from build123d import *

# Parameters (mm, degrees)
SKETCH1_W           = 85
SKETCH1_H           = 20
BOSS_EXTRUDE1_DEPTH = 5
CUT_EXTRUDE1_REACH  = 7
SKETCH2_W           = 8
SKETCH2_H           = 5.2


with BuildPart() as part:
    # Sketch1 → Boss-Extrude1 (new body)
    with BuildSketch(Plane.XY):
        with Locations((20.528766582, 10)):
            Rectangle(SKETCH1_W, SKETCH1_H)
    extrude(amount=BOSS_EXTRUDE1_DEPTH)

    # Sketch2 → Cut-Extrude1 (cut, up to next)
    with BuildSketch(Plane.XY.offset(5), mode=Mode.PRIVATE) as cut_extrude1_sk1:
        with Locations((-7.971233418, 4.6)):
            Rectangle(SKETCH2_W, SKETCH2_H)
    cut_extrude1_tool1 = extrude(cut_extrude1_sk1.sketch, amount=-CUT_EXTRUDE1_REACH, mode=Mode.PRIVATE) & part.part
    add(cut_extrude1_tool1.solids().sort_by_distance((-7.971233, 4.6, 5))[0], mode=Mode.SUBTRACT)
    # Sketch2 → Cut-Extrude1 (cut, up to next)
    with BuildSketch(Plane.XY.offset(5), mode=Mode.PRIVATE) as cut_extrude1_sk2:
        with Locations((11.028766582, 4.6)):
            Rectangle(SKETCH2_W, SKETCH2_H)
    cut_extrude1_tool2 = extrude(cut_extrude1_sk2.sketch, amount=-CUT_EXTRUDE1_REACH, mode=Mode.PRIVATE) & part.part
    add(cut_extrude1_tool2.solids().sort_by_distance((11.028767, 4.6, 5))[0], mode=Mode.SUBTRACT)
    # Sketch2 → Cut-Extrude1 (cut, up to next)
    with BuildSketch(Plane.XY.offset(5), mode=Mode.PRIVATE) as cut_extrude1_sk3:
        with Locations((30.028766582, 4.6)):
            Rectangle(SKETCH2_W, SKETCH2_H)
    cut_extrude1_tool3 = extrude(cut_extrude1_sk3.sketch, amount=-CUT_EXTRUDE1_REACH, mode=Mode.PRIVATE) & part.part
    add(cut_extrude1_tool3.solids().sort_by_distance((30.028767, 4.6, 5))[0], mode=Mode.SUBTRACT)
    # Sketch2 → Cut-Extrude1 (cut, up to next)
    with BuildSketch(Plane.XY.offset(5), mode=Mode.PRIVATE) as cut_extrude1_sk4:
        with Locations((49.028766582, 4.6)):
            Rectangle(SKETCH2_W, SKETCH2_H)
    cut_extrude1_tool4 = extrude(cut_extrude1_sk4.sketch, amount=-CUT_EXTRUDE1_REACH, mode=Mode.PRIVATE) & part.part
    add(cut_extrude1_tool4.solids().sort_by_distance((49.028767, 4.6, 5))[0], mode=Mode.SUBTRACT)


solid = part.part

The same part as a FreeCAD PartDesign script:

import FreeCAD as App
import Part
import Sketcher
from FreeCAD import Vector

doc = App.newDocument("Part")
body = doc.addObject("PartDesign::Body", "Body")

# Sketch on XY plane
sketch1 = body.newObject("Sketcher::SketchObject", "Sketch")
sketch1.AttachmentSupport = (doc.getObject("XY_Plane"), [""])
sketch1.MapMode = "FlatFace"
sketch1.addGeometry(Part.LineSegment(Vector(-22, 20, 0), Vector(-22, 0, 0)), False)
sketch1.addGeometry(Part.LineSegment(Vector(-22, 0, 0), Vector(63, 0, 0)), False)
sketch1.addGeometry(Part.LineSegment(Vector(63, 0, 0), Vector(63, 20, 0)), False)
sketch1.addGeometry(Part.LineSegment(Vector(63, 20, 0), Vector(-22, 20, 0)), False)
sketch1.addConstraint(Sketcher.Constraint("Coincident", 0, 2, 1, 1))
sketch1.addConstraint(Sketcher.Constraint("Coincident", 1, 2, 2, 1))
sketch1.addConstraint(Sketcher.Constraint("Coincident", 2, 2, 3, 1))
sketch1.addConstraint(Sketcher.Constraint("Coincident", 3, 2, 0, 1))
sketch1.addConstraint(Sketcher.Constraint("Vertical", 0))
sketch1.addConstraint(Sketcher.Constraint("Horizontal", 1))
sketch1.addConstraint(Sketcher.Constraint("Vertical", 2))
sketch1.addConstraint(Sketcher.Constraint("Horizontal", 3))
sketch1.addConstraint(Sketcher.Constraint("PointOnObject", 0, 2, -1))
sketch1.addConstraint(Sketcher.Constraint("DistanceX", 1, 1, 1, 2, 85.0))
sketch1.addConstraint(Sketcher.Constraint("DistanceY", 0, 2, 0, 1, 20.0))
sketch1.addConstraint(Sketcher.Constraint("DistanceX", 0, 2, -1, 1, 21.971233))
pad1 = body.newObject("PartDesign::Pad", "Pad")
pad1.Profile = sketch1
pad1.Length = 5

# Sketch on XY plane
sketch2 = body.newObject("Sketcher::SketchObject", "Sketch001")
sketch2.AttachmentSupport = (doc.getObject("XY_Plane"), [""])
sketch2.MapMode = "FlatFace"
sketch2.AttachmentOffset = App.Placement(Vector(0, 0, 5), App.Rotation())
sketch2.addGeometry(Part.LineSegment(Vector(-12, 7, 0), Vector(-12, 2, 0)), False)
sketch2.addGeometry(Part.LineSegment(Vector(-12, 2, 0), Vector(-4, 2, 0)), False)
sketch2.addGeometry(Part.LineSegment(Vector(-4, 2, 0), Vector(-4, 7, 0)), False)
sketch2.addGeometry(Part.LineSegment(Vector(-4, 7, 0), Vector(-12, 7, 0)), False)
sketch2.addConstraint(Sketcher.Constraint("Coincident", 0, 2, 1, 1))
sketch2.addConstraint(Sketcher.Constraint("Coincident", 1, 2, 2, 1))
sketch2.addConstraint(Sketcher.Constraint("Coincident", 2, 2, 3, 1))
sketch2.addConstraint(Sketcher.Constraint("Coincident", 3, 2, 0, 1))
sketch2.addConstraint(Sketcher.Constraint("Vertical", 0))
sketch2.addConstraint(Sketcher.Constraint("Horizontal", 1))
sketch2.addConstraint(Sketcher.Constraint("Vertical", 2))
sketch2.addConstraint(Sketcher.Constraint("Horizontal", 3))
sketch2.addConstraint(Sketcher.Constraint("DistanceX", 1, 1, 1, 2, 8.0))
sketch2.addConstraint(Sketcher.Constraint("DistanceY", 0, 2, 0, 1, 5.2))
sketch2.addConstraint(Sketcher.Constraint("DistanceY", -1, 1, 0, 2, 2.0))
sketch2.addConstraint(Sketcher.Constraint("DistanceX", 0, 2, -1, 1, 11.971233))
pocket1 = body.newObject("PartDesign::Pocket", "Pocket")
pocket1.Profile = sketch2
pocket1.Type = "UpToFirst"

# Sketch on XY plane
sketch3 = body.newObject("Sketcher::SketchObject", "Sketch002")
sketch3.AttachmentSupport = (doc.getObject("XY_Plane"), [""])
sketch3.MapMode = "FlatFace"
sketch3.AttachmentOffset = App.Placement(Vector(0, 0, 5), App.Rotation())
sketch3.addGeometry(Part.LineSegment(Vector(7, 7, 0), Vector(7, 2, 0)), False)
sketch3.addGeometry(Part.LineSegment(Vector(7, 2, 0), Vector(15, 2, 0)), False)
sketch3.addGeometry(Part.LineSegment(Vector(15, 2, 0), Vector(15, 7, 0)), False)
sketch3.addGeometry(Part.LineSegment(Vector(15, 7, 0), Vector(7, 7, 0)), False)
sketch3.addConstraint(Sketcher.Constraint("Coincident", 0, 2, 1, 1))
sketch3.addConstraint(Sketcher.Constraint("Coincident", 1, 2, 2, 1))
sketch3.addConstraint(Sketcher.Constraint("Coincident", 2, 2, 3, 1))
sketch3.addConstraint(Sketcher.Constraint("Coincident", 3, 2, 0, 1))
sketch3.addConstraint(Sketcher.Constraint("Vertical", 0))
sketch3.addConstraint(Sketcher.Constraint("Horizontal", 1))
sketch3.addConstraint(Sketcher.Constraint("Vertical", 2))
sketch3.addConstraint(Sketcher.Constraint("Horizontal", 3))
sketch3.addConstraint(Sketcher.Constraint("DistanceX", 1, 1, 1, 2, 8.0))
sketch3.addConstraint(Sketcher.Constraint("DistanceY", 0, 2, 0, 1, 5.2))
sketch3.addConstraint(Sketcher.Constraint("DistanceY", -1, 1, 0, 2, 2.0))
sketch3.addConstraint(Sketcher.Constraint("DistanceX", -1, 1, 0, 2, 7.028767))
pocket2 = body.newObject("PartDesign::Pocket", "Pocket001")
pocket2.Profile = sketch3
pocket2.Type = "UpToFirst"

# Sketch on XY plane
sketch4 = body.newObject("Sketcher::SketchObject", "Sketch003")
sketch4.AttachmentSupport = (doc.getObject("XY_Plane"), [""])
sketch4.MapMode = "FlatFace"
sketch4.AttachmentOffset = App.Placement(Vector(0, 0, 5), App.Rotation())
sketch4.addGeometry(Part.LineSegment(Vector(26, 7, 0), Vector(26, 2, 0)), False)
sketch4.addGeometry(Part.LineSegment(Vector(26, 2, 0), Vector(34, 2, 0)), False)
sketch4.addGeometry(Part.LineSegment(Vector(34, 2, 0), Vector(34, 7, 0)), False)
sketch4.addGeometry(Part.LineSegment(Vector(34, 7, 0), Vector(26, 7, 0)), False)
sketch4.addConstraint(Sketcher.Constraint("Coincident", 0, 2, 1, 1))
sketch4.addConstraint(Sketcher.Constraint("Coincident", 1, 2, 2, 1))
sketch4.addConstraint(Sketcher.Constraint("Coincident", 2, 2, 3, 1))
sketch4.addConstraint(Sketcher.Constraint("Coincident", 3, 2, 0, 1))
sketch4.addConstraint(Sketcher.Constraint("Vertical", 0))
sketch4.addConstraint(Sketcher.Constraint("Horizontal", 1))
sketch4.addConstraint(Sketcher.Constraint("Vertical", 2))
sketch4.addConstraint(Sketcher.Constraint("Horizontal", 3))
sketch4.addConstraint(Sketcher.Constraint("DistanceX", 1, 1, 1, 2, 8.0))
sketch4.addConstraint(Sketcher.Constraint("DistanceY", 0, 2, 0, 1, 5.2))
sketch4.addConstraint(Sketcher.Constraint("DistanceY", -1, 1, 0, 2, 2.0))
sketch4.addConstraint(Sketcher.Constraint("DistanceX", -1, 1, 0, 2, 26.028767))
pocket3 = body.newObject("PartDesign::Pocket", "Pocket002")
pocket3.Profile = sketch4
pocket3.Type = "UpToFirst"

# Sketch on XY plane
sketch5 = body.newObject("Sketcher::SketchObject", "Sketch004")
sketch5.AttachmentSupport = (doc.getObject("XY_Plane"), [""])
sketch5.MapMode = "FlatFace"
sketch5.AttachmentOffset = App.Placement(Vector(0, 0, 5), App.Rotation())
sketch5.addGeometry(Part.LineSegment(Vector(45, 7, 0), Vector(45, 2, 0)), False)
sketch5.addGeometry(Part.LineSegment(Vector(45, 2, 0), Vector(53, 2, 0)), False)
sketch5.addGeometry(Part.LineSegment(Vector(53, 2, 0), Vector(53, 7, 0)), False)
sketch5.addGeometry(Part.LineSegment(Vector(53, 7, 0), Vector(45, 7, 0)), False)
sketch5.addConstraint(Sketcher.Constraint("Coincident", 0, 2, 1, 1))
sketch5.addConstraint(Sketcher.Constraint("Coincident", 1, 2, 2, 1))
sketch5.addConstraint(Sketcher.Constraint("Coincident", 2, 2, 3, 1))
sketch5.addConstraint(Sketcher.Constraint("Coincident", 3, 2, 0, 1))
sketch5.addConstraint(Sketcher.Constraint("Vertical", 0))
sketch5.addConstraint(Sketcher.Constraint("Horizontal", 1))
sketch5.addConstraint(Sketcher.Constraint("Vertical", 2))
sketch5.addConstraint(Sketcher.Constraint("Horizontal", 3))
sketch5.addConstraint(Sketcher.Constraint("DistanceX", 1, 1, 1, 2, 8.0))
sketch5.addConstraint(Sketcher.Constraint("DistanceY", 0, 2, 0, 1, 5.2))
sketch5.addConstraint(Sketcher.Constraint("DistanceY", -1, 1, 0, 2, 2.0))
sketch5.addConstraint(Sketcher.Constraint("DistanceX", -1, 1, 0, 2, 45.028767))
pocket4 = body.newObject("PartDesign::Pocket", "Pocket003")
pocket4.Profile = sketch5
pocket4.Type = "UpToFirst"

doc.recompute()
